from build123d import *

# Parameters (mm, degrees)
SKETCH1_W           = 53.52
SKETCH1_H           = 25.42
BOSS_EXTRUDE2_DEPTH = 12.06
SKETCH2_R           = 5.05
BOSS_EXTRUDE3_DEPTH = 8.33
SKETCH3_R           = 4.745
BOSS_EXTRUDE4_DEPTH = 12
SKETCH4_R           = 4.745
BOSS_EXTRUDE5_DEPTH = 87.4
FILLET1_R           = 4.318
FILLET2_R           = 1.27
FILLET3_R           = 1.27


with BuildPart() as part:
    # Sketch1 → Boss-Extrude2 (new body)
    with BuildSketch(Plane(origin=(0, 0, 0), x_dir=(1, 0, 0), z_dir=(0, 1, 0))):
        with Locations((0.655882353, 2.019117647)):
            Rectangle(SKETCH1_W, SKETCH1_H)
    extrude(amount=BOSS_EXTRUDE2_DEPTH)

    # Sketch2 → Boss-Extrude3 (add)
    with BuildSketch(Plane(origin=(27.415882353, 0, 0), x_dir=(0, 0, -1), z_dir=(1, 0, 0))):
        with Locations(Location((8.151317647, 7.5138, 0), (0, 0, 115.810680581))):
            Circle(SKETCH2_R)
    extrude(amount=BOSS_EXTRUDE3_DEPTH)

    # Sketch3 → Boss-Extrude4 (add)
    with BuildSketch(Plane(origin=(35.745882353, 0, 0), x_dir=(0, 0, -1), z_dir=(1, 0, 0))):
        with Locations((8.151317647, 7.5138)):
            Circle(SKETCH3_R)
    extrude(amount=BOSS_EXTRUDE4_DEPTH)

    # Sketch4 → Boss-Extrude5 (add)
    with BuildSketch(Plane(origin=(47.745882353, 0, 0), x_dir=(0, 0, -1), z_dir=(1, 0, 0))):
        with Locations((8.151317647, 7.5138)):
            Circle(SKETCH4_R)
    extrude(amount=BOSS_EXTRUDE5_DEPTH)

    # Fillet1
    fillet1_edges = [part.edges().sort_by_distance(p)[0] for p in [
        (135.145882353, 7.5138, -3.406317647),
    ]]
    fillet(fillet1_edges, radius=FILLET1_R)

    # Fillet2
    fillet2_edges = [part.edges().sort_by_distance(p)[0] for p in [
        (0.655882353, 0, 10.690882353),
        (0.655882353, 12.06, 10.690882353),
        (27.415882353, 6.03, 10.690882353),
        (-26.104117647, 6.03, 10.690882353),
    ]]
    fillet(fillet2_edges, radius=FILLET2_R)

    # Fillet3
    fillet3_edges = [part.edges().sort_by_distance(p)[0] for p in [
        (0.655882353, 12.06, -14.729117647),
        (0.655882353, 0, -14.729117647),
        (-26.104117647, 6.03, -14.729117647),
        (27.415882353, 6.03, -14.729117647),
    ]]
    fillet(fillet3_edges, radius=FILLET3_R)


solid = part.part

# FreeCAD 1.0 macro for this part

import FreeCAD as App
import Part
import Sketcher
from FreeCAD import Vector
Q = App.Units.Quantity


def edges_at(feature, points):
    """Names of the edges that pass closest to the given points."""
    edges = feature.Shape.Edges
    near = lambda p: min(range(len(edges)), key=lambda i: edges[i].distToShape(Part.Vertex(*p))[0])
    return sorted({f"Edge{near(p) + 1}" for p in points})


def add_polygon(sketch, points):
    """Adds a closed chain of lines whose ends are joined by coincident constraints."""
    first, n = sketch.GeometryCount, len(points)
    for a, b in zip(points, points[1:] + points[:1]):
        sketch.addGeometry(Part.LineSegment(App.Vector(*a, 0), App.Vector(*b, 0)), False)
    for i in range(n):
        sketch.addConstraint(Sketcher.Constraint("Coincident", first + i, 2, first + (i + 1) % n, 1))

doc = App.newDocument("Part")
body = doc.addObject("PartDesign::Body", "Body")

sketch1 = doc.addObject("Sketcher::SketchObject", "Sketch")
body.addObject(sketch1)
sketch1.AttachmentSupport = (doc.XZ_Plane, [""])
sketch1.MapMode = "FlatFace"
add_polygon(sketch1, [(-26, -15), (-26, 11), (27, 11), (27, -15)])
sketch1.addConstraint([
    Sketcher.Constraint("Vertical", 0),
    Sketcher.Constraint("Horizontal", 1),
    Sketcher.Constraint("Vertical", 2),
    Sketcher.Constraint("Horizontal", 3),
    Sketcher.Constraint("DistanceX", 1, 1, 1, 2, Q("53.52 mm")),
    Sketcher.Constraint("DistanceY", 0, 1, 0, 2, Q("25.42 mm")),
    Sketcher.Constraint("DistanceX", 0, 2, -1, 1, Q("26.104118 mm")),
    Sketcher.Constraint("DistanceY", -1, 1, 0, 2, Q("10.690882 mm")),
])
pad1 = doc.addObject("PartDesign::Pad", "Pad")
body.addObject(pad1)
pad1.Profile = sketch1
pad1.Length = 12.06
pad1.Reversed = True

sketch2 = doc.addObject("Sketcher::SketchObject", "Sketch001")
body.addObject(sketch2)
sketch2.AttachmentSupport = (doc.YZ_Plane, [""])
sketch2.MapMode = "FlatFace"
sketch2.AttachmentOffset = App.Placement(Vector(0, 0, 27.415882), App.Rotation())
sketch2.addGeometry(Part.Circle(Vector(8, -8, 0), Vector(0, 0, 1), 5), False)
sketch2.addConstraint([
    Sketcher.Constraint("Diameter", 0, Q("10.1 mm")),
    Sketcher.Constraint("DistanceX", -1, 1, 0, 3, Q("7.5138 mm")),
    Sketcher.Constraint("DistanceY", 0, 3, -1, 1, Q("8.151318 mm")),
])
pad2 = doc.addObject("PartDesign::Pad", "Pad001")
body.addObject(pad2)
pad2.Profile = sketch2
pad2.Length = 8.33

sketch3 = doc.addObject("Sketcher::SketchObject", "Sketch002")
body.addObject(sketch3)
sketch3.AttachmentSupport = (doc.YZ_Plane, [""])
sketch3.MapMode = "FlatFace"
sketch3.AttachmentOffset = App.Placement(Vector(0, 0, 35.745882), App.Rotation())
sketch3.addGeometry(Part.Circle(Vector(7.5, -8.2, 0), Vector(0, 0, 1), 4.7), False)
sketch3.addConstraint([
    Sketcher.Constraint("Diameter", 0, Q("9.49 mm")),
    Sketcher.Constraint("DistanceX", -1, 1, 0, 3, Q("7.5138 mm")),
    Sketcher.Constraint("DistanceY", 0, 3, -1, 1, Q("8.151318 mm")),
])
pad3 = doc.addObject("PartDesign::Pad", "Pad002")
body.addObject(pad3)
pad3.Profile = sketch3
pad3.Length = 12

sketch4 = doc.addObject("Sketcher::SketchObject", "Sketch003")
body.addObject(sketch4)
sketch4.AttachmentSupport = (doc.YZ_Plane, [""])
sketch4.MapMode = "FlatFace"
sketch4.AttachmentOffset = App.Placement(Vector(0, 0, 47.745882), App.Rotation())
sketch4.addGeometry(Part.Circle(Vector(7.5, -8.2, 0), Vector(0, 0, 1), 4.7), False)
sketch4.addConstraint([
    Sketcher.Constraint("Diameter", 0, Q("9.49 mm")),
    Sketcher.Constraint("DistanceX", -1, 1, 0, 3, Q("7.5138 mm")),
    Sketcher.Constraint("DistanceY", 0, 3, -1, 1, Q("8.151318 mm")),
])
pad4 = doc.addObject("PartDesign::Pad", "Pad003")
body.addObject(pad4)
pad4.Profile = sketch4
pad4.Length = 87.4
doc.recompute()

fillet = doc.addObject("PartDesign::Fillet", "Fillet")
body.addObject(fillet)
fillet.Base = (pad4, edges_at(pad4, [(135.146, 7.514, -3.406)]))
fillet.Radius = 4.318
doc.recompute()

fillet2 = doc.addObject("PartDesign::Fillet", "Fillet001")
body.addObject(fillet2)
fillet2.Base = (fillet, edges_at(fillet, [
    (0.656, 0, 10.691),
    (0.656, 12.06, 10.691),
    (27.416, 6.03, 10.691),
    (-26.104, 6.03, 10.691),
]))
fillet2.Radius = 1.27
doc.recompute()

fillet3 = doc.addObject("PartDesign::Fillet", "Fillet002")
body.addObject(fillet3)
fillet3.Base = (fillet2, edges_at(fillet2, [
    (0.656, 12.06, -14.729),
    (0.656, 0, -14.729),
    (-26.104, 6.03, -14.729),
    (27.416, 6.03, -14.729),
]))
fillet3.Radius = 1.27

doc.recompute()
